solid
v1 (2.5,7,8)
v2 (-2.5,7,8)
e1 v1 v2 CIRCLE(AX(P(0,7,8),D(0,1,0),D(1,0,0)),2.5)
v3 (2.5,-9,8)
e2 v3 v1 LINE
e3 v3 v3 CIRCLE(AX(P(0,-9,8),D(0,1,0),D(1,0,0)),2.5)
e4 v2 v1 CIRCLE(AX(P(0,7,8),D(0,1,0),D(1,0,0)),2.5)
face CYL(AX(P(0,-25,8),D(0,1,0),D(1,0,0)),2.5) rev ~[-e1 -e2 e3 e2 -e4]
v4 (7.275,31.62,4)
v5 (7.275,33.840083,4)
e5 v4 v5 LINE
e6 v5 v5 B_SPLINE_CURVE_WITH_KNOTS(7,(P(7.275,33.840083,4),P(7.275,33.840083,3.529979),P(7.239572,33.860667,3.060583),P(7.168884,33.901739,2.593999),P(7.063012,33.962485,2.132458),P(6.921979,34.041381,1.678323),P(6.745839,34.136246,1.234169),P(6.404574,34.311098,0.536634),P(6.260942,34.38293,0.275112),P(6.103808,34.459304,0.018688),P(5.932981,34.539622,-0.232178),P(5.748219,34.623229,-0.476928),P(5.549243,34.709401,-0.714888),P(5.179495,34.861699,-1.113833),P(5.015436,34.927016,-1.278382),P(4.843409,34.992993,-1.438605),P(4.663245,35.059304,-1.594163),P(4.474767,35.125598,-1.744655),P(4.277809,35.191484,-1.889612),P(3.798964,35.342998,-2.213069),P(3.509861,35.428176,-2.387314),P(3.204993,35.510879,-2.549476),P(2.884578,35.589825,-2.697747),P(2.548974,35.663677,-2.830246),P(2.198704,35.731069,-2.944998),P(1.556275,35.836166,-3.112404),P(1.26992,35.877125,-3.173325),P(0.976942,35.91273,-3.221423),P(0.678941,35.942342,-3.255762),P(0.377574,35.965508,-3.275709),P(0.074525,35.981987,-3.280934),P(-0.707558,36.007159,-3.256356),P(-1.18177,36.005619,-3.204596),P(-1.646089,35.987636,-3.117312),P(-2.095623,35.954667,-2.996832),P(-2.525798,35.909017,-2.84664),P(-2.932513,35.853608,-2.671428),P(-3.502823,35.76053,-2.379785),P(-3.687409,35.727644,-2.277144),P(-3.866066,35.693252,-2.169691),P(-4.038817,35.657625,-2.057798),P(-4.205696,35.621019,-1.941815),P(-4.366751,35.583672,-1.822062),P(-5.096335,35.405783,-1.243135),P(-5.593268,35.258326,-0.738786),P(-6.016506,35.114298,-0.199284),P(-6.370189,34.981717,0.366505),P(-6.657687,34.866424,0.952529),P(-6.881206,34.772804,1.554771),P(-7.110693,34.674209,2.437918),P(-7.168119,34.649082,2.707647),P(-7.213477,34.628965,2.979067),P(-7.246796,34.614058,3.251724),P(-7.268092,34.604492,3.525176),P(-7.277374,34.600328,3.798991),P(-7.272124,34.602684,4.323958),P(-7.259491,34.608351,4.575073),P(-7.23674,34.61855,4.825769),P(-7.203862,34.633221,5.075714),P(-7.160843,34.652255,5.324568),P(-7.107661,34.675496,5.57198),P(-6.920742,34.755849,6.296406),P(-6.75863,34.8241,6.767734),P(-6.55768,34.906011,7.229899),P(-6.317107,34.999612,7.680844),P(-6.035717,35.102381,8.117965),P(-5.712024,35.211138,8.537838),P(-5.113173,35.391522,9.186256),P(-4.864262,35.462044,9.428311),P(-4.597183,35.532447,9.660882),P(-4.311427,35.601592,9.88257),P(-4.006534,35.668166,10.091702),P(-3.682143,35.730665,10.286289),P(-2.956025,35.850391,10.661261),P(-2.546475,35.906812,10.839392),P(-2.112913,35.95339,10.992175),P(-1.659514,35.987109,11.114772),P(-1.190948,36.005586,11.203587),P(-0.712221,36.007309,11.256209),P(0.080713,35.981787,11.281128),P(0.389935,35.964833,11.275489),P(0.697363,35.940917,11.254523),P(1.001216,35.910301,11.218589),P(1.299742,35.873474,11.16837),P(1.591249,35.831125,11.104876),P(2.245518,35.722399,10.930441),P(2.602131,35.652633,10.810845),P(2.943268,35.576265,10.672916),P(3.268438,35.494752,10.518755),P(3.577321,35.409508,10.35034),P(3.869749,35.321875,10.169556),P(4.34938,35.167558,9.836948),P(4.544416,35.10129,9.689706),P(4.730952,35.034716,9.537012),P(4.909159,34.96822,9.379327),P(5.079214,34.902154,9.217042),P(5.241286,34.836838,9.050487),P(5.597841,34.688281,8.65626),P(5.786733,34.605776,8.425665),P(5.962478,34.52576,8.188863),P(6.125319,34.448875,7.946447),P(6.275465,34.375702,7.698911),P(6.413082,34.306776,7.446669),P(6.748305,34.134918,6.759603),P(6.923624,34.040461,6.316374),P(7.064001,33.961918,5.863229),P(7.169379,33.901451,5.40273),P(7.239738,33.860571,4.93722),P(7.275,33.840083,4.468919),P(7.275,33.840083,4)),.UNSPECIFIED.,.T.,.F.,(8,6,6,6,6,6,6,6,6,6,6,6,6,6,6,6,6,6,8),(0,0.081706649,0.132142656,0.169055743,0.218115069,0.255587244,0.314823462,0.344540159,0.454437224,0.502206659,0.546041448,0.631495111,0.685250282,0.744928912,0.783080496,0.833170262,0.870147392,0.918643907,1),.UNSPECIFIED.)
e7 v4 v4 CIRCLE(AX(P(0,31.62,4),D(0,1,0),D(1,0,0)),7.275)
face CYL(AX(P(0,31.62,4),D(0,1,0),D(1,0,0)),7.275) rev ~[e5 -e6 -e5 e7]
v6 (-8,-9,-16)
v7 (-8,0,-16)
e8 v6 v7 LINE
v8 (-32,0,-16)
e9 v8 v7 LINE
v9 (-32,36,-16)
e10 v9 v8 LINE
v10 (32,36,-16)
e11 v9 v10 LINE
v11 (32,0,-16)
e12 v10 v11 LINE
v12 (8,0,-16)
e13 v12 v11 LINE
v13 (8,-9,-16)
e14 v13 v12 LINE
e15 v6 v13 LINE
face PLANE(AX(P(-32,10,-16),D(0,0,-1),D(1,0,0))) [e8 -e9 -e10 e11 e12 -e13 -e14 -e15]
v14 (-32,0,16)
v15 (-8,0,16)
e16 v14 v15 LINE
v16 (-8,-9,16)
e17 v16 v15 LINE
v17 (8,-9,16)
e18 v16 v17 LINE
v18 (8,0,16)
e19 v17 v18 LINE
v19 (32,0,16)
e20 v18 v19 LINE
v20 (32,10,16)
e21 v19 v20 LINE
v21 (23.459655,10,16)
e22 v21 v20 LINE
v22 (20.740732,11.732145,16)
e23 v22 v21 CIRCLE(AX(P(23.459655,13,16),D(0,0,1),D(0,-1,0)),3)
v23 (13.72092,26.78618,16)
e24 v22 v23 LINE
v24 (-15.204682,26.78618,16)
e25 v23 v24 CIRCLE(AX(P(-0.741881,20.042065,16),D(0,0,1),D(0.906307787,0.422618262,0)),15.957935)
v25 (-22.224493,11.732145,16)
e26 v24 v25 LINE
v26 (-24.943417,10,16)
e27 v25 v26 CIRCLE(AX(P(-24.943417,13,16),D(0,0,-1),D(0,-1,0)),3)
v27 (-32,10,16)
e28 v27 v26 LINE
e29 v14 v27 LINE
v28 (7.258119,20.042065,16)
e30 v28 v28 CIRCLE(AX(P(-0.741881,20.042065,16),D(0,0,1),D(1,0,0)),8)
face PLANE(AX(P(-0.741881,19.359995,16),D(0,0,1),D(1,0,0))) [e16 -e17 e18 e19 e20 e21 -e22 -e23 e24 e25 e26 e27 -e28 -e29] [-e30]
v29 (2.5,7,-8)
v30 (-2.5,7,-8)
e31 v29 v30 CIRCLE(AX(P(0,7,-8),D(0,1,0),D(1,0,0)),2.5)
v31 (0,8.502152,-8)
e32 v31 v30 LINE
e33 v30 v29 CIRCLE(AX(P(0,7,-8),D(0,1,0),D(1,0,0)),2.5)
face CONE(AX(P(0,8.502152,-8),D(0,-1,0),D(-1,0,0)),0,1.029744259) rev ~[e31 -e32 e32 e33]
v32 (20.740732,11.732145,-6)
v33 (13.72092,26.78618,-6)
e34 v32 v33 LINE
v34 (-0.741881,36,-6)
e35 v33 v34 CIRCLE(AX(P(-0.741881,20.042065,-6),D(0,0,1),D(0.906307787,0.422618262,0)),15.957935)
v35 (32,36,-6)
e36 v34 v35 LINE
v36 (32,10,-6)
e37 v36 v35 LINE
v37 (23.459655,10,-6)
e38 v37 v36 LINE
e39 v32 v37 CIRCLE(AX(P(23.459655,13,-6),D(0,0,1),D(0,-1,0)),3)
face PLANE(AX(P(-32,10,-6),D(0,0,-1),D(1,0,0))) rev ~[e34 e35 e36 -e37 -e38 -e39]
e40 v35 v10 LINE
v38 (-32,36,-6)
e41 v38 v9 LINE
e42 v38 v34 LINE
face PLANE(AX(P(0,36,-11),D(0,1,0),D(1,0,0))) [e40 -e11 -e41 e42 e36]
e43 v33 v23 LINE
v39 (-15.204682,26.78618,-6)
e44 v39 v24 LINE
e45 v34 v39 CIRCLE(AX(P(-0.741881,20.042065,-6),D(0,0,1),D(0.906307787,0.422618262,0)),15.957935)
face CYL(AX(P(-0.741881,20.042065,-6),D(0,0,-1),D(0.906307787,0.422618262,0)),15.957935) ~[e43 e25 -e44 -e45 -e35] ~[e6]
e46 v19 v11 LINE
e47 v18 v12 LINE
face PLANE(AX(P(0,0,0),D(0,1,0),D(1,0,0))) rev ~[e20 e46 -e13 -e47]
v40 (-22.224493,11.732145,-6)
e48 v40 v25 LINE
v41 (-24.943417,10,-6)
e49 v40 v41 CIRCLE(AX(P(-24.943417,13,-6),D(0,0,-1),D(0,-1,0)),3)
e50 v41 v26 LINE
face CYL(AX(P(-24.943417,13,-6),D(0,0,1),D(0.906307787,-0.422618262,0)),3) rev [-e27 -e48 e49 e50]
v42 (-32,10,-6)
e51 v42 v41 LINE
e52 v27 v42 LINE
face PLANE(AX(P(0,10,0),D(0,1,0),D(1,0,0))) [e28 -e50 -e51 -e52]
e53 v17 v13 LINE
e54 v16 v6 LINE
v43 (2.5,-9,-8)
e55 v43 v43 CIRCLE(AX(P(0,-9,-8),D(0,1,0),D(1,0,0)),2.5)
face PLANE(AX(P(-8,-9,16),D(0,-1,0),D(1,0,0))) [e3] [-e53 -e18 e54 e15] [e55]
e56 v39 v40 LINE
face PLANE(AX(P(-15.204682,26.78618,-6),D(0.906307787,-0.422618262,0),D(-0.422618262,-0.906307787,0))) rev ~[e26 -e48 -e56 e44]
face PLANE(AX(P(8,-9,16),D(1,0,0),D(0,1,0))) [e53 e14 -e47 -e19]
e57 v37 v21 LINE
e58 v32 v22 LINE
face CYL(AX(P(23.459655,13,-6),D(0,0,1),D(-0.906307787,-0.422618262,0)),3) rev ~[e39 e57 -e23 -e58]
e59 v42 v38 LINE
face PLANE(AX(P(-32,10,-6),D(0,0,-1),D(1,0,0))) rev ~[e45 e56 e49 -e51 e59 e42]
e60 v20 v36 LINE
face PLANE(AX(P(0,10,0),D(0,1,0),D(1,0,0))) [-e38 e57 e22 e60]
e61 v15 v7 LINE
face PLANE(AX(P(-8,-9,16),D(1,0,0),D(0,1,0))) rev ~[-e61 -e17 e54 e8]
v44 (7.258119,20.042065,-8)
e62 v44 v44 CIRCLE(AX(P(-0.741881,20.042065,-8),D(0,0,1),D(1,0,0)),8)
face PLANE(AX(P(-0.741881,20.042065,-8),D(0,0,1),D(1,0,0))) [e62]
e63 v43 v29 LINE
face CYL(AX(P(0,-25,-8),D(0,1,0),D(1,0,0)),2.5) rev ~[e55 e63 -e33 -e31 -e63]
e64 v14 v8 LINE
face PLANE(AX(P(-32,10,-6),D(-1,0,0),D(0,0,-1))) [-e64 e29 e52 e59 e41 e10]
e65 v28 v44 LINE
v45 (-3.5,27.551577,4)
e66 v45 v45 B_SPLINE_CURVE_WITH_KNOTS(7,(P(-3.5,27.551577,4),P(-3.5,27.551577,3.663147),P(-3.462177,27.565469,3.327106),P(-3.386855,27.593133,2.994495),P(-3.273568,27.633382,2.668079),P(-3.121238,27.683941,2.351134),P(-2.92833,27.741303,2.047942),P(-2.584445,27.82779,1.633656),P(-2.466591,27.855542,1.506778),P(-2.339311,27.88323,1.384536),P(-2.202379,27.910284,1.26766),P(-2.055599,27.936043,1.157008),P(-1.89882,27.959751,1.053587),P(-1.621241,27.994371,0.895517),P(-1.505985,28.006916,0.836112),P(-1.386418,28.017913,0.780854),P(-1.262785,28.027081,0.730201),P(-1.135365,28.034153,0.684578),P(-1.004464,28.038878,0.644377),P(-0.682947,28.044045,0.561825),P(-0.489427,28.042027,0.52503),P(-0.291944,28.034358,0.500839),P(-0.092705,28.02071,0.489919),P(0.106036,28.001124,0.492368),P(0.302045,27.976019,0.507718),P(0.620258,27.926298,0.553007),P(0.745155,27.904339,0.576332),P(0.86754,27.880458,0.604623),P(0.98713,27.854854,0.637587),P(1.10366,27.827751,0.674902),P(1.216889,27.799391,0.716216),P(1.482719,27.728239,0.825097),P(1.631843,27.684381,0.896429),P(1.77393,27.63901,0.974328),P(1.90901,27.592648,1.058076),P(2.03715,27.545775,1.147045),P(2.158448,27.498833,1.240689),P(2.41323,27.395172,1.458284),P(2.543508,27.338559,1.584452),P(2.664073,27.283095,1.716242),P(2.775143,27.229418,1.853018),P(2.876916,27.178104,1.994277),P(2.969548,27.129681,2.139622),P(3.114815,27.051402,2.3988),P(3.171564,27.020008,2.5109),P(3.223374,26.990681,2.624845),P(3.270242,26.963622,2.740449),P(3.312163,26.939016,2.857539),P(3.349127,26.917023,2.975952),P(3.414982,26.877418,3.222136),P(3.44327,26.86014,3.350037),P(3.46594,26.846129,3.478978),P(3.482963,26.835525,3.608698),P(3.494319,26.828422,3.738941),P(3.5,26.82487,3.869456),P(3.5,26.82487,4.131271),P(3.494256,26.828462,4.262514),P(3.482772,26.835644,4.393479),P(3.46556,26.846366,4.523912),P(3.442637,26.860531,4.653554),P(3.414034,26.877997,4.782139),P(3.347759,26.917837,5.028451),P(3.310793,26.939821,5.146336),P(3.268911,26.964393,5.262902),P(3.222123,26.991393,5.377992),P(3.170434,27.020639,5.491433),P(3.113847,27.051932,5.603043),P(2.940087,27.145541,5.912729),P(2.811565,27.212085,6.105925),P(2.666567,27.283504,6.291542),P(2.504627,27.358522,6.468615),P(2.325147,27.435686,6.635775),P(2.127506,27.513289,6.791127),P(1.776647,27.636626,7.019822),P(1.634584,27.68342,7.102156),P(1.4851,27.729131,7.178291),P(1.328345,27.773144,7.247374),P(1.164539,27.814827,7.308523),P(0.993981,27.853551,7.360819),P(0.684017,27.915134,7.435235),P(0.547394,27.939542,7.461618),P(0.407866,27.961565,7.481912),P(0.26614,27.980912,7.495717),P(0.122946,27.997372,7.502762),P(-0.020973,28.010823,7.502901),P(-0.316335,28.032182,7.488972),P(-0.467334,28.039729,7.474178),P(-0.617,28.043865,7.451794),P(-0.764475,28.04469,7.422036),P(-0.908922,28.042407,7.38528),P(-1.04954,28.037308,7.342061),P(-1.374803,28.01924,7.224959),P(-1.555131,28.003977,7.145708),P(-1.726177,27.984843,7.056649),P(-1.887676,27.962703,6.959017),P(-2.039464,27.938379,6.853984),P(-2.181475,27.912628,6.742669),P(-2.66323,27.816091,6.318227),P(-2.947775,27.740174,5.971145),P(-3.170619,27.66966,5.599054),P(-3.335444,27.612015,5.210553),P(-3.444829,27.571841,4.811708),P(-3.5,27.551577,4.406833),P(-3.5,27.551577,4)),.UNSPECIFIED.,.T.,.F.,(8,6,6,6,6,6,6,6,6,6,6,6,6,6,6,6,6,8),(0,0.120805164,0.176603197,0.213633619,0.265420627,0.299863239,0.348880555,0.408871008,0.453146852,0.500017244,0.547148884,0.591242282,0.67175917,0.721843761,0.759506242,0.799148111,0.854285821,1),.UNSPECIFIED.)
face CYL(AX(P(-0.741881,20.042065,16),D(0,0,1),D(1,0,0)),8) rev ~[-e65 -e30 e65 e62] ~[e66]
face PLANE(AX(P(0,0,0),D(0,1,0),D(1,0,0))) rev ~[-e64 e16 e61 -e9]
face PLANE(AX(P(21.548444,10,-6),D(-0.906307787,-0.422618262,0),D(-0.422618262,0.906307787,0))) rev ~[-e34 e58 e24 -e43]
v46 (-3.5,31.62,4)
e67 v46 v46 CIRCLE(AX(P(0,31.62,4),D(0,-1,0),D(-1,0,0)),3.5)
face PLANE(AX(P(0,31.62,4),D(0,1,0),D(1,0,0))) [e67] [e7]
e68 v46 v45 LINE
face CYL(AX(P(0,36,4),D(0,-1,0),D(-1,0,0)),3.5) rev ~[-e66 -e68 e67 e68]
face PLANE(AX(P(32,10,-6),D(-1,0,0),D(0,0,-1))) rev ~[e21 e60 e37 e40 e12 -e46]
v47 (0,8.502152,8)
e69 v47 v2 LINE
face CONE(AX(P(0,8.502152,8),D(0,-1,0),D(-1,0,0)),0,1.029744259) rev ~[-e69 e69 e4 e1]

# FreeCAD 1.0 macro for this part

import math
import FreeCAD as App
import Part
import Sketcher

V = App.Vector
Q = App.Units.Quantity


def edges_at(feature, points):
    """Names of the edges that pass closest to the given points."""
    edges = feature.Shape.Edges
    near = lambda p: min(range(len(edges)), key=lambda i: edges[i].distToShape(Part.Vertex(*p))[0])
    return sorted({f"Edge{near(p) + 1}" for p in points})

doc = App.newDocument("Part")
params = doc.addObject("Spreadsheet::Sheet", "Params")
for row, (alias, value) in enumerate([
    ("sketch1_width", "64 mm"),
    ("sketch1_height", "32 mm"),
    ("pad1_length", "10 mm"),
    ("sketch2_width", "64 mm"),
    ("sketch2_height", "10 mm"),
    ("pad2_length", "26 mm"),
    ("pad3_length", "22 mm"),
    ("fillet_radius", "3 mm"),
    ("sketch4_width", "16 mm"),
    ("sketch4_height", "9 mm"),
    ("pad4_length", "32 mm"),
    ("sketch5_diameter", "7 mm"),
    ("hole_diameter", "7 mm"),
    ("hole_depth", "15 mm"),
    ("hole_cbore_diameter", "14.55 mm"),
    ("hole_cbore_depth", "4.38 mm"),
    ("sketch6_diameter", "16 mm"),
    ("pocket1_length", "24 mm"),
    ("sketch7_diameter", "5 mm"),
    ("hole2_diameter", "5 mm"),
    ("hole2_depth", "16 mm"),
], start=1):
    params.set(f"A{row}", alias)
    params.set(f"B{row}", "=" + value)
    params.setAlias(f"B{row}", alias)

body = doc.addObject("PartDesign::Body", "Body")

# Sketch on XZ plane
sketch1 = doc.addObject("Sketcher::SketchObject", "Sketch")
body.addObject(sketch1)
sketch1.AttachmentSupport = (doc.XZ_Plane, [""])
sketch1.MapMode = "FlatFace"
sketch1.addGeometry(Part.LineSegment(V(-32, -16, 0), V(-32, 16, 0)), False)
sketch1.addGeometry(Part.LineSegment(V(-32, 16, 0), V(32, 16, 0)), False)
sketch1.addGeometry(Part.LineSegment(V(32, 16, 0), V(32, -16, 0)), False)
sketch1.addGeometry(Part.LineSegment(V(32, -16, 0), V(-32, -16, 0)), False)
sketch1.addConstraint(Sketcher.Constraint("Coincident", 0, 2, 1, 1))
sketch1.addConstraint(Sketcher.Constraint("Coincident", 1, 2, 2, 1))
sketch1.addConstraint(Sketcher.Constraint("Coincident", 2, 2, 3, 1))
sketch1.addConstraint(Sketcher.Constraint("Coincident", 3, 2, 0, 1))
sketch1.addConstraint(Sketcher.Constraint("Vertical", 0))
sketch1.addConstraint(Sketcher.Constraint("Horizontal", 1))
sketch1.addConstraint(Sketcher.Constraint("Vertical", 2))
sketch1.addConstraint(Sketcher.Constraint("Horizontal", 3))
sketch1.addConstraint(Sketcher.Constraint("Symmetric", 0, 2, 2, 2, -1, 1))
sketch1.addConstraint(Sketcher.Constraint("DistanceX", 1, 1, 1, 2, 64.0))
sketch1.addConstraint(Sketcher.Constraint("DistanceY", 0, 1, 0, 2, 32.0))
sketch1.setExpression("Constraints[9]", "Params.sketch1_width")
sketch1.setExpression("Constraints[10]", "Params.sketch1_height")
pad1 = doc.addObject("PartDesign::Pad", "Pad")
body.addObject(pad1)
pad1.Profile = sketch1
pad1.setExpression("Length", "Params.pad1_length")
pad1.Reversed = True

# Sketch on XZ plane
sketch2 = doc.addObject("Sketcher::SketchObject", "Sketch001")
body.addObject(sketch2)
sketch2.AttachmentSupport = (doc.XZ_Plane, [""])
sketch2.MapMode = "FlatFace"
sketch2.AttachmentOffset = App.Placement(V(0, 0, -10), App.Rotation())
sketch2.addGeometry(Part.LineSegment(V(-32, -16, 0), V(-32, -6, 0)), False)
sketch2.addGeometry(Part.LineSegment(V(-32, -6, 0), V(32, -6, 0)), False)
sketch2.addGeometry(Part.LineSegment(V(32, -6, 0), V(32, -16, 0)), False)
sketch2.addGeometry(Part.LineSegment(V(32, -16, 0), V(-32, -16, 0)), False)
sketch2.addConstraint(Sketcher.Constraint("Coincident", 0, 2, 1, 1))
sketch2.addConstraint(Sketcher.Constraint("Coincident", 1, 2, 2, 1))
sketch2.addConstraint(Sketcher.Constraint("Coincident", 2, 2, 3, 1))
sketch2.addConstraint(Sketcher.Constraint("Coincident", 3, 2, 0, 1))
sketch2.addConstraint(Sketcher.Constraint("Vertical", 0))
sketch2.addConstraint(Sketcher.Constraint("Horizontal", 1))
sketch2.addConstraint(Sketcher.Constraint("Vertical", 2))
sketch2.addConstraint(Sketcher.Constraint("Horizontal", 3))
sketch2.addConstraint(Sketcher.Constraint("DistanceX", 1, 1, 1, 2, 64.0))
sketch2.addConstraint(Sketcher.Constraint("DistanceY", 0, 1, 0, 2, 10.0))
sketch2.addConstraint(Sketcher.Constraint("DistanceX", 0, 2, -1, 1, 32.0))
sketch2.addConstraint(Sketcher.Constraint("DistanceY", 0, 2, -1, 1, 6.0))
sketch2.setExpression("Constraints[8]", "Params.sketch2_width")
sketch2.setExpression("Constraints[9]", "Params.sketch2_height")
pad2 = doc.addObject("PartDesign::Pad", "Pad001")
body.addObject(pad2)
pad2.Profile = sketch2
pad2.setExpression("Length", "Params.pad2_length")
pad2.Reversed = True

# Sketch on XY plane
sketch3 = doc.addObject("Sketcher::SketchObject", "Sketch002")
body.addObject(sketch3)
sketch3.AttachmentSupport = (doc.XY_Plane, [""])
sketch3.MapMode = "FlatFace"
sketch3.AttachmentOffset = App.Placement(V(0, 0, -6), App.Rotation())
sketch3.addGeometry(Part.LineSegment(V(-15, 27, 0), V(-23, 10, 0)), False)
sketch3.addGeometry(Part.LineSegment(V(-23, 10, 0), V(22, 10, 0)), False)
sketch3.addGeometry(Part.LineSegment(V(22, 10, 0), V(14, 27, 0)), False)
sketch3.addGeometry(Part.ArcOfCircle(Part.Circle(V(-1, 20, 0), V(0, 0, 1), 16), math.radians(25), math.radians(155)), False)
sketch3.addConstraint(Sketcher.Constraint("Coincident", 0, 2, 1, 1))
sketch3.addConstraint(Sketcher.Constraint("Coincident", 1, 2, 2, 1))
sketch3.addConstraint(Sketcher.Constraint("Tangent", 2, 2, 3, 1))
sketch3.addConstraint(Sketcher.Constraint("Tangent", 3, 2, 0, 1))
sketch3.addConstraint(Sketcher.Constraint("Horizontal", 1))
sketch3.addConstraint(Sketcher.Constraint("Horizontal", 2, 2, 3, 2))
sketch3.addConstraint(Sketcher.Constraint("Angle", 0, Q("-115 deg")))
sketch3.addConstraint(Sketcher.Constraint("DistanceY", -1, 1, 0, 2, 10.0))
sketch3.addConstraint(Sketcher.Constraint("Radius", 3, 15.957935))
sketch3.addConstraint(Sketcher.Constraint("Distance", 0, 18.5215))
sketch3.addConstraint(Sketcher.Constraint("DistanceX", 3, 3, -1, 1, 0.741881))
pad3 = doc.addObject("PartDesign::Pad", "Pad002")
body.addObject(pad3)
pad3.Profile = sketch3
pad3.setExpression("Length", "Params.pad3_length")
doc.recompute()

fillet = doc.addObject("PartDesign::Fillet", "Fillet")
body.addObject(fillet)
fillet.Base = (pad3, edges_at(pad3, [(21.548, 10, 5), (-23.032, 10, 5)]))
fillet.setExpression("Radius", "Params.fillet_radius")

# Sketch on XY plane
sketch4 = doc.addObject("Sketcher::SketchObject", "Sketch003")
body.addObject(sketch4)
sketch4.AttachmentSupport = (doc.XY_Plane, [""])
sketch4.MapMode = "FlatFace"
sketch4.AttachmentOffset = App.Placement(V(0, 0, 16), App.Rotation())
sketch4.addGeometry(Part.LineSegment(V(-8, 0, 0), V(-8, -9, 0)), False)
sketch4.addGeometry(Part.LineSegment(V(-8, -9, 0), V(8, -9, 0)), False)
sketch4.addGeometry(Part.LineSegment(V(8, -9, 0), V(8, 0, 0)), False)
sketch4.addGeometry(Part.LineSegment(V(8, 0, 0), V(-8, 0, 0)), False)
sketch4.addConstraint(Sketcher.Constraint("Coincident", 0, 2, 1, 1))
sketch4.addConstraint(Sketcher.Constraint("Coincident", 1, 2, 2, 1))
sketch4.addConstraint(Sketcher.Constraint("Coincident", 2, 2, 3, 1))
sketch4.addConstraint(Sketcher.Constraint("Coincident", 3, 2, 0, 1))
sketch4.addConstraint(Sketcher.Constraint("Vertical", 0))
sketch4.addConstraint(Sketcher.Constraint("Horizontal", 1))
sketch4.addConstraint(Sketcher.Constraint("Vertical", 2))
sketch4.addConstraint(Sketcher.Constraint("Horizontal", 3))
sketch4.addConstraint(Sketcher.Constraint("Symmetric", 2, 2, 3, 2, -1, 1))
sketch4.addConstraint(Sketcher.Constraint("DistanceX", 1, 1, 1, 2, 16.0))
sketch4.addConstraint(Sketcher.Constraint("DistanceY", 0, 2, 0, 1, 9.0))
sketch4.setExpression("Constraints[9]", "Params.sketch4_width")
sketch4.setExpression("Constraints[10]", "Params.sketch4_height")
pad4 = doc.addObject("PartDesign::Pad", "Pad003")
body.addObject(pad4)
pad4.Profile = sketch4
pad4.setExpression("Length", "Params.pad4_length")
pad4.Reversed = True

# Sketch on XZ plane
sketch5 = doc.addObject("Sketcher::SketchObject", "Sketch004")
body.addObject(sketch5)
sketch5.AttachmentSupport = (doc.XZ_Plane, [""])
sketch5.MapMode = "FlatFace"
sketch5.AttachmentOffset = App.Placement(V(0, 0, -36), App.Rotation())
sketch5.addGeometry(Part.Circle(V(0, 4, 0), V(0, 0, 1), 3.5), False)
sketch5.addConstraint(Sketcher.Constraint("PointOnObject", 0, 3, -2))
sketch5.addConstraint(Sketcher.Constraint("Diameter", 0, 7.0))
sketch5.addConstraint(Sketcher.Constraint("DistanceY", -1, 1, 0, 3, 4.0))
sketch5.setExpression("Constraints[1]", "Params.sketch5_diameter")
doc.recompute()
hole = doc.addObject("PartDesign::Hole", "Hole")
body.addObject(hole)
hole.Profile = sketch5
hole.ThreadType = "None"
hole.setExpression("Diameter", "Params.hole_diameter")
hole.DepthType = "Dimension"
hole.setExpression("Depth", "Params.hole_depth")
hole.DrillPoint = "Angled"
hole.DrillPointAngle = 118
hole.HoleCutType = "Counterbore"
hole.setExpression("HoleCutDiameter", "Params.hole_cbore_diameter")
hole.setExpression("HoleCutDepth", "Params.hole_cbore_depth")
hole.Reversed = True

# Sketch on XY plane
sketch6 = doc.addObject("Sketcher::SketchObject", "Sketch005")
body.addObject(sketch6)
sketch6.AttachmentSupport = (doc.XY_Plane, [""])
sketch6.MapMode = "FlatFace"
sketch6.AttachmentOffset = App.Placement(V(0, 0, 16), App.Rotation())
sketch6.addGeometry(Part.Circle(V(-1, 20, 0), V(0, 0, 1), 8), False)
sketch6.addConstraint(Sketcher.Constraint("Diameter", 0, 16.0))
sketch6.addConstraint(Sketcher.Constraint("DistanceX", 0, 3, -1, 1, 0.741881))
sketch6.addConstraint(Sketcher.Constraint("DistanceY", -1, 1, 0, 3, 20.042065))
sketch6.setExpression("Constraints[0]", "Params.sketch6_diameter")
pocket1 = doc.addObject("PartDesign::Pocket", "Pocket")
body.addObject(pocket1)
pocket1.Profile = sketch6
pocket1.setExpression("Length", "Params.pocket1_length")

# Sketch on XZ plane
sketch7 = doc.addObject("Sketcher::SketchObject", "Sketch006")
body.addObject(sketch7)
sketch7.AttachmentSupport = (doc.XZ_Plane, [""])
sketch7.MapMode = "FlatFace"
sketch7.AttachmentOffset = App.Placement(V(0, 0, 9), App.Rotation())
sketch7.addGeometry(Part.Circle(V(0, 8, 0), V(0, 0, 1), 2.5), False)
sketch7.addGeometry(Part.Circle(V(0, -8, 0), V(0, 0, 1), 2.5), False)
sketch7.addConstraint(Sketcher.Constraint("Equal", 0, 1))
sketch7.addConstraint(Sketcher.Constraint("Symmetric", 0, 3, 1, 3, -1, 1))
sketch7.addConstraint(Sketcher.Constraint("PointOnObject", 0, 3, -2))
sketch7.addConstraint(Sketcher.Constraint("Diameter", 0, 5.0))
sketch7.addConstraint(Sketcher.Constraint("DistanceY", -1, 1, 0, 3, 8.0))
sketch7.setExpression("Constraints[3]", "Params.sketch7_diameter")
doc.recompute()
hole2 = doc.addObject("PartDesign::Hole", "Hole001")
body.addObject(hole2)
hole2.Profile = sketch7
hole2.ThreadType = "None"
hole2.setExpression("Diameter", "Params.hole2_diameter")
hole2.DepthType = "Dimension"
hole2.setExpression("Depth", "Params.hole2_depth")
hole2.DrillPoint = "Angled"
hole2.DrillPointAngle = 118

doc.recompute()
